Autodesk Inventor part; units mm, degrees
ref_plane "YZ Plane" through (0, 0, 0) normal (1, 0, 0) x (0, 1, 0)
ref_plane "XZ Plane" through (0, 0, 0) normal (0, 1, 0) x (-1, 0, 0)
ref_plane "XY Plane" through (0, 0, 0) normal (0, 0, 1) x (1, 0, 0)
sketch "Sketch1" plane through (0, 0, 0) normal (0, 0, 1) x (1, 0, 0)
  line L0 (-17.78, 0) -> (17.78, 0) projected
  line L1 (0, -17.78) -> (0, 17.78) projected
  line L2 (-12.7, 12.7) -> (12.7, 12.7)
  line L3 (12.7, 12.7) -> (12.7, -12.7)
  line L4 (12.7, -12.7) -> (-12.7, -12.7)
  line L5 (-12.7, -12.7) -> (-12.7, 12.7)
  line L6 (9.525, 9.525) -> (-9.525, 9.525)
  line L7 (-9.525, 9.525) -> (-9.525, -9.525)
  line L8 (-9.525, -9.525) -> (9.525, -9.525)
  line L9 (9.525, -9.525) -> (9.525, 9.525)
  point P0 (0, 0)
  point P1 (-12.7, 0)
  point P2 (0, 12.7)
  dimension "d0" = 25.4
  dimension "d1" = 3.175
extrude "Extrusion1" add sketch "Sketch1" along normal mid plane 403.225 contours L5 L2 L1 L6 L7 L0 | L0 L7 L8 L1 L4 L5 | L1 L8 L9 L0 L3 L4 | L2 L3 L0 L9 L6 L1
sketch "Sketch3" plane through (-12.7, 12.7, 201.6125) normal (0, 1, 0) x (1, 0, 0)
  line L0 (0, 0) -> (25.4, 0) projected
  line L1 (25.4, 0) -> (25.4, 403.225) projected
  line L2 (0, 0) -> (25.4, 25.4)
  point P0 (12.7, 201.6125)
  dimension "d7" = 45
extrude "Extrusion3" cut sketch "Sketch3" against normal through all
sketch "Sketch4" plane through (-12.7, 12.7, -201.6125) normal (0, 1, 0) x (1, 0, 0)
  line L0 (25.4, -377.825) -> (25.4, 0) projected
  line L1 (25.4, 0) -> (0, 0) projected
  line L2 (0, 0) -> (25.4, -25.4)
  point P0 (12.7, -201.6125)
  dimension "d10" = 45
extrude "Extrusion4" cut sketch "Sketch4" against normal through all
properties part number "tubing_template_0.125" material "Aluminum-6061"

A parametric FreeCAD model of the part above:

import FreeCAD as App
import Part
import Sketcher

V = App.Vector
Q = App.Units.Quantity

doc = App.newDocument("Part")
body = doc.addObject("PartDesign::Body", "Body")

# Sketch on XY plane
sketch1 = body.newObject("Sketcher::SketchObject", "Sketch")
sketch1.AttachmentSupport = (doc.getObject("XY_Plane"), [""])
sketch1.MapMode = "FlatFace"
sketch1.addGeometry([
    Part.LineSegment(V(-13, 13, 0), V(-13, -13, 0)),  # 0
    Part.LineSegment(V(-13, -13, 0), V(13, -13, 0)),  # 1
    Part.LineSegment(V(13, -13, 0), V(13, 13, 0)),  # 2
    Part.LineSegment(V(13, 13, 0), V(-13, 13, 0)),  # 3
    Part.LineSegment(V(-10, 10, 0), V(10, 10, 0)),  # 4
    Part.LineSegment(V(10, 10, 0), V(10, -10, 0)),  # 5
    Part.LineSegment(V(10, -10, 0), V(-10, -10, 0)),  # 6
    Part.LineSegment(V(-10, -10, 0), V(-10, 10, 0)),  # 7
], False)
sketch1.addConstraint([
    Sketcher.Constraint("Coincident", 0, 2, 1, 1),
    Sketcher.Constraint("Coincident", 1, 2, 2, 1),
    Sketcher.Constraint("Coincident", 2, 2, 3, 1),
    Sketcher.Constraint("Coincident", 3, 2, 0, 1),
    Sketcher.Constraint("Coincident", 4, 2, 5, 1),
    Sketcher.Constraint("Coincident", 5, 2, 6, 1),
    Sketcher.Constraint("Coincident", 6, 2, 7, 1),
    Sketcher.Constraint("Coincident", 7, 2, 4, 1),
    Sketcher.Constraint("Vertical", 0),
    Sketcher.Constraint("Horizontal", 1),
    Sketcher.Constraint("Vertical", 2),
    Sketcher.Constraint("Horizontal", 3),
    Sketcher.Constraint("Horizontal", 4),
    Sketcher.Constraint("Vertical", 5),
    Sketcher.Constraint("Horizontal", 6),
    Sketcher.Constraint("Vertical", 7),
    Sketcher.Constraint("Symmetric", 0, 2, 2, 2, -1, 1),
    Sketcher.Constraint("Symmetric", 4, 2, 6, 2, -1, 1),
    Sketcher.Constraint("Equal", 3, 0),
    Sketcher.Constraint("Equal", 6, 5),
    Sketcher.Constraint("DistanceX", 1, 1, 1, 2, Q("1 in")),
    Sketcher.Constraint("DistanceX", 4, 2, 2, 2, Q("0.125 in")),
])
pad1 = body.newObject("PartDesign::Pad", "Pad")
pad1.Profile = sketch1
pad1.Length = Q("15.875 in")
pad1.Midplane = True

# Sketch on XZ plane
sketch2 = body.newObject("Sketcher::SketchObject", "Sketch001")
sketch2.AttachmentSupport = (doc.getObject("XZ_Plane"), [""])
sketch2.MapMode = "FlatFace"
sketch2.AttachmentOffset = App.Placement(V(0, 0, -0.5 * 25.4), App.Rotation())
sketch2.addGeometry([
    Part.LineSegment(V(13, 176, 0), V(-13, 202, 0)),
    Part.LineSegment(V(-13, 202, 0), V(13, 202, 0)),
    Part.LineSegment(V(13, 202, 0), V(13, 176, 0)),
], False)
sketch2.addConstraint([
    Sketcher.Constraint("Coincident", 0, 2, 1, 1),
    Sketcher.Constraint("Coincident", 1, 2, 2, 1),
    Sketcher.Constraint("Coincident", 2, 2, 0, 1),
    Sketcher.Constraint("Horizontal", 1),
    Sketcher.Constraint("Vertical", 2),
    Sketcher.Constraint("Equal", 1, 2),
    Sketcher.Constraint("DistanceX", 1, 1, 1, 2, Q("1 in")),
    Sketcher.Constraint("DistanceX", 0, 2, -1, 1, Q("0.5 in")),
    Sketcher.Constraint("DistanceY", -1, 1, 0, 2, Q("7.9375 in")),
])
pocket1 = body.newObject("PartDesign::Pocket", "Pocket")
pocket1.Profile = sketch2
pocket1.Type = "ThroughAll"
pocket1.Reversed = True

# Sketch on XZ plane
sketch3 = body.newObject("Sketcher::SketchObject", "Sketch002")
sketch3.AttachmentSupport = (doc.getObject("XZ_Plane"), [""])
sketch3.MapMode = "FlatFace"
sketch3.AttachmentOffset = App.Placement(V(0, 0, -0.5 * 25.4), App.Rotation())
sketch3.addGeometry([
    Part.LineSegment(V(-13, -202, 0), V(13, -176, 0)),
    Part.LineSegment(V(13, -176, 0), V(13, -202, 0)),
    Part.LineSegment(V(13, -202, 0), V(-13, -202, 0)),
], False)
sketch3.addConstraint([
    Sketcher.Constraint("Coincident", 0, 2, 1, 1),
    Sketcher.Constraint("Coincident", 1, 2, 2, 1),
    Sketcher.Constraint("Coincident", 2, 2, 0, 1),
    Sketcher.Constraint("Vertical", 1),
    Sketcher.Constraint("Horizontal", 2),
    Sketcher.Constraint("Equal", 2, 1),
    Sketcher.Constraint("DistanceX", 2, 2, 2, 1, Q("1 in")),
    Sketcher.Constraint("DistanceX", -1, 1, 0, 2, Q("0.5 in")),
    Sketcher.Constraint("DistanceY", 0, 2, -1, 1, Q("6.9375 in")),
])
pocket2 = body.newObject("PartDesign::Pocket", "Pocket001")
pocket2.Profile = sketch3
pocket2.Type = "ThroughAll"
pocket2.Reversed = True

doc.recompute()
